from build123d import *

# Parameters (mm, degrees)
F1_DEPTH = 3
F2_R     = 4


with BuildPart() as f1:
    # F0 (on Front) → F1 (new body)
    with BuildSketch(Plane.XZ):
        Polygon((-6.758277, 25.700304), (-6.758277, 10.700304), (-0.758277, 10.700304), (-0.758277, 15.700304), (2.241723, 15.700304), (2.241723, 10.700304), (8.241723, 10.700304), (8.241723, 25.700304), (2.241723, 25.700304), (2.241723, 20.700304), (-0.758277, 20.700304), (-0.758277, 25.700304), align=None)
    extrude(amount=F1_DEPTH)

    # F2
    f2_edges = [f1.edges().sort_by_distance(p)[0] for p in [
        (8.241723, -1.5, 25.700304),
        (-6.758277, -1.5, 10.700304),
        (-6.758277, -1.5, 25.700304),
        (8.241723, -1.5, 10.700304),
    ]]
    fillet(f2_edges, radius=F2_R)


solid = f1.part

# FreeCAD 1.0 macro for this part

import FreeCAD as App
import Part
import Sketcher
Q = App.Units.Quantity


def edges_at(feature, points):
    """Names of the edges that pass closest to the given points."""
    edges = feature.Shape.Edges
    near = lambda p: min(range(len(edges)), key=lambda i: edges[i].distToShape(Part.Vertex(*p))[0])
    return sorted({f"Edge{near(p) + 1}" for p in points})


def add_polygon(sketch, points):
    """Adds a closed chain of lines whose ends are joined by coincident constraints."""
    first, n = sketch.GeometryCount, len(points)
    for a, b in zip(points, points[1:] + points[:1]):
        sketch.addGeometry(Part.LineSegment(App.Vector(*a, 0), App.Vector(*b, 0)), False)
    for i in range(n):
        sketch.addConstraint(Sketcher.Constraint("Coincident", first + i, 2, first + (i + 1) % n, 1))

doc = App.newDocument("Part")
body = doc.addObject("PartDesign::Body", "Body")

# Sketch on XZ plane
sketch1 = body.newObject("Sketcher::SketchObject", "Sketch")
sketch1.AttachmentSupport = (doc.getObject("XZ_Plane"), [""])
sketch1.MapMode = "FlatFace"
add_polygon(sketch1, [(-6.8, 25.7), (-6.8, 10.7), (-0.8, 10.7), (-0.8, 15.7), (2.2, 15.7), (2.2, 10.7), (8.2, 10.7), (8.2, 25.7), (2.2, 25.7), (2.2, 20.7), (-0.8, 20.7), (-0.8, 25.7)])  # lines 0-11
sketch1.addConstraint([
    Sketcher.Constraint("Vertical", 0),
    Sketcher.Constraint("Horizontal", 1),
    Sketcher.Constraint("Vertical", 2),
    Sketcher.Constraint("Horizontal", 3),
    Sketcher.Constraint("Vertical", 4),
    Sketcher.Constraint("Horizontal", 5),
    Sketcher.Constraint("Vertical", 6),
    Sketcher.Constraint("Horizontal", 7),
    Sketcher.Constraint("Vertical", 8),
    Sketcher.Constraint("Horizontal", 9),
    Sketcher.Constraint("Vertical", 10),
    Sketcher.Constraint("Horizontal", 11),
    Sketcher.Constraint("Horizontal", 1, 2, 4, 2),
    Sketcher.Constraint("Horizontal", 7, 2, 10, 2),
    Sketcher.Constraint("Vertical", 4, 2, 7, 2),
    Sketcher.Constraint("Vertical", 2, 2, 9, 2),
    Sketcher.Constraint("Equal", 1, 5),
    Sketcher.Constraint("Equal", 4, 8),
    Sketcher.Constraint("DistanceX", 1, 1, 1, 2, Q("6 mm")),
    Sketcher.Constraint("DistanceX", 3, 1, 3, 2, Q("3 mm")),
    Sketcher.Constraint("DistanceY", 0, 2, 0, 1, Q("15 mm")),
    Sketcher.Constraint("DistanceY", 2, 1, 2, 2, Q("5 mm")),
    Sketcher.Constraint("DistanceX", 0, 2, -1, 1, Q("6.758277 mm")),
    Sketcher.Constraint("DistanceY", -1, 1, 0, 2, Q("10.700304 mm")),
])
pad1 = body.newObject("PartDesign::Pad", "Pad")
pad1.Profile = sketch1
pad1.Length = 3
doc.recompute()

fillet = body.newObject("PartDesign::Fillet", "Fillet")
fillet.Base = (pad1, edges_at(pad1, [
    (8.242, -1.5, 25.7),
    (-6.758, -1.5, 10.7),
    (-6.758, -1.5, 25.7),
    (8.242, -1.5, 10.7),
]))
fillet.Radius = 4

doc.recompute()
